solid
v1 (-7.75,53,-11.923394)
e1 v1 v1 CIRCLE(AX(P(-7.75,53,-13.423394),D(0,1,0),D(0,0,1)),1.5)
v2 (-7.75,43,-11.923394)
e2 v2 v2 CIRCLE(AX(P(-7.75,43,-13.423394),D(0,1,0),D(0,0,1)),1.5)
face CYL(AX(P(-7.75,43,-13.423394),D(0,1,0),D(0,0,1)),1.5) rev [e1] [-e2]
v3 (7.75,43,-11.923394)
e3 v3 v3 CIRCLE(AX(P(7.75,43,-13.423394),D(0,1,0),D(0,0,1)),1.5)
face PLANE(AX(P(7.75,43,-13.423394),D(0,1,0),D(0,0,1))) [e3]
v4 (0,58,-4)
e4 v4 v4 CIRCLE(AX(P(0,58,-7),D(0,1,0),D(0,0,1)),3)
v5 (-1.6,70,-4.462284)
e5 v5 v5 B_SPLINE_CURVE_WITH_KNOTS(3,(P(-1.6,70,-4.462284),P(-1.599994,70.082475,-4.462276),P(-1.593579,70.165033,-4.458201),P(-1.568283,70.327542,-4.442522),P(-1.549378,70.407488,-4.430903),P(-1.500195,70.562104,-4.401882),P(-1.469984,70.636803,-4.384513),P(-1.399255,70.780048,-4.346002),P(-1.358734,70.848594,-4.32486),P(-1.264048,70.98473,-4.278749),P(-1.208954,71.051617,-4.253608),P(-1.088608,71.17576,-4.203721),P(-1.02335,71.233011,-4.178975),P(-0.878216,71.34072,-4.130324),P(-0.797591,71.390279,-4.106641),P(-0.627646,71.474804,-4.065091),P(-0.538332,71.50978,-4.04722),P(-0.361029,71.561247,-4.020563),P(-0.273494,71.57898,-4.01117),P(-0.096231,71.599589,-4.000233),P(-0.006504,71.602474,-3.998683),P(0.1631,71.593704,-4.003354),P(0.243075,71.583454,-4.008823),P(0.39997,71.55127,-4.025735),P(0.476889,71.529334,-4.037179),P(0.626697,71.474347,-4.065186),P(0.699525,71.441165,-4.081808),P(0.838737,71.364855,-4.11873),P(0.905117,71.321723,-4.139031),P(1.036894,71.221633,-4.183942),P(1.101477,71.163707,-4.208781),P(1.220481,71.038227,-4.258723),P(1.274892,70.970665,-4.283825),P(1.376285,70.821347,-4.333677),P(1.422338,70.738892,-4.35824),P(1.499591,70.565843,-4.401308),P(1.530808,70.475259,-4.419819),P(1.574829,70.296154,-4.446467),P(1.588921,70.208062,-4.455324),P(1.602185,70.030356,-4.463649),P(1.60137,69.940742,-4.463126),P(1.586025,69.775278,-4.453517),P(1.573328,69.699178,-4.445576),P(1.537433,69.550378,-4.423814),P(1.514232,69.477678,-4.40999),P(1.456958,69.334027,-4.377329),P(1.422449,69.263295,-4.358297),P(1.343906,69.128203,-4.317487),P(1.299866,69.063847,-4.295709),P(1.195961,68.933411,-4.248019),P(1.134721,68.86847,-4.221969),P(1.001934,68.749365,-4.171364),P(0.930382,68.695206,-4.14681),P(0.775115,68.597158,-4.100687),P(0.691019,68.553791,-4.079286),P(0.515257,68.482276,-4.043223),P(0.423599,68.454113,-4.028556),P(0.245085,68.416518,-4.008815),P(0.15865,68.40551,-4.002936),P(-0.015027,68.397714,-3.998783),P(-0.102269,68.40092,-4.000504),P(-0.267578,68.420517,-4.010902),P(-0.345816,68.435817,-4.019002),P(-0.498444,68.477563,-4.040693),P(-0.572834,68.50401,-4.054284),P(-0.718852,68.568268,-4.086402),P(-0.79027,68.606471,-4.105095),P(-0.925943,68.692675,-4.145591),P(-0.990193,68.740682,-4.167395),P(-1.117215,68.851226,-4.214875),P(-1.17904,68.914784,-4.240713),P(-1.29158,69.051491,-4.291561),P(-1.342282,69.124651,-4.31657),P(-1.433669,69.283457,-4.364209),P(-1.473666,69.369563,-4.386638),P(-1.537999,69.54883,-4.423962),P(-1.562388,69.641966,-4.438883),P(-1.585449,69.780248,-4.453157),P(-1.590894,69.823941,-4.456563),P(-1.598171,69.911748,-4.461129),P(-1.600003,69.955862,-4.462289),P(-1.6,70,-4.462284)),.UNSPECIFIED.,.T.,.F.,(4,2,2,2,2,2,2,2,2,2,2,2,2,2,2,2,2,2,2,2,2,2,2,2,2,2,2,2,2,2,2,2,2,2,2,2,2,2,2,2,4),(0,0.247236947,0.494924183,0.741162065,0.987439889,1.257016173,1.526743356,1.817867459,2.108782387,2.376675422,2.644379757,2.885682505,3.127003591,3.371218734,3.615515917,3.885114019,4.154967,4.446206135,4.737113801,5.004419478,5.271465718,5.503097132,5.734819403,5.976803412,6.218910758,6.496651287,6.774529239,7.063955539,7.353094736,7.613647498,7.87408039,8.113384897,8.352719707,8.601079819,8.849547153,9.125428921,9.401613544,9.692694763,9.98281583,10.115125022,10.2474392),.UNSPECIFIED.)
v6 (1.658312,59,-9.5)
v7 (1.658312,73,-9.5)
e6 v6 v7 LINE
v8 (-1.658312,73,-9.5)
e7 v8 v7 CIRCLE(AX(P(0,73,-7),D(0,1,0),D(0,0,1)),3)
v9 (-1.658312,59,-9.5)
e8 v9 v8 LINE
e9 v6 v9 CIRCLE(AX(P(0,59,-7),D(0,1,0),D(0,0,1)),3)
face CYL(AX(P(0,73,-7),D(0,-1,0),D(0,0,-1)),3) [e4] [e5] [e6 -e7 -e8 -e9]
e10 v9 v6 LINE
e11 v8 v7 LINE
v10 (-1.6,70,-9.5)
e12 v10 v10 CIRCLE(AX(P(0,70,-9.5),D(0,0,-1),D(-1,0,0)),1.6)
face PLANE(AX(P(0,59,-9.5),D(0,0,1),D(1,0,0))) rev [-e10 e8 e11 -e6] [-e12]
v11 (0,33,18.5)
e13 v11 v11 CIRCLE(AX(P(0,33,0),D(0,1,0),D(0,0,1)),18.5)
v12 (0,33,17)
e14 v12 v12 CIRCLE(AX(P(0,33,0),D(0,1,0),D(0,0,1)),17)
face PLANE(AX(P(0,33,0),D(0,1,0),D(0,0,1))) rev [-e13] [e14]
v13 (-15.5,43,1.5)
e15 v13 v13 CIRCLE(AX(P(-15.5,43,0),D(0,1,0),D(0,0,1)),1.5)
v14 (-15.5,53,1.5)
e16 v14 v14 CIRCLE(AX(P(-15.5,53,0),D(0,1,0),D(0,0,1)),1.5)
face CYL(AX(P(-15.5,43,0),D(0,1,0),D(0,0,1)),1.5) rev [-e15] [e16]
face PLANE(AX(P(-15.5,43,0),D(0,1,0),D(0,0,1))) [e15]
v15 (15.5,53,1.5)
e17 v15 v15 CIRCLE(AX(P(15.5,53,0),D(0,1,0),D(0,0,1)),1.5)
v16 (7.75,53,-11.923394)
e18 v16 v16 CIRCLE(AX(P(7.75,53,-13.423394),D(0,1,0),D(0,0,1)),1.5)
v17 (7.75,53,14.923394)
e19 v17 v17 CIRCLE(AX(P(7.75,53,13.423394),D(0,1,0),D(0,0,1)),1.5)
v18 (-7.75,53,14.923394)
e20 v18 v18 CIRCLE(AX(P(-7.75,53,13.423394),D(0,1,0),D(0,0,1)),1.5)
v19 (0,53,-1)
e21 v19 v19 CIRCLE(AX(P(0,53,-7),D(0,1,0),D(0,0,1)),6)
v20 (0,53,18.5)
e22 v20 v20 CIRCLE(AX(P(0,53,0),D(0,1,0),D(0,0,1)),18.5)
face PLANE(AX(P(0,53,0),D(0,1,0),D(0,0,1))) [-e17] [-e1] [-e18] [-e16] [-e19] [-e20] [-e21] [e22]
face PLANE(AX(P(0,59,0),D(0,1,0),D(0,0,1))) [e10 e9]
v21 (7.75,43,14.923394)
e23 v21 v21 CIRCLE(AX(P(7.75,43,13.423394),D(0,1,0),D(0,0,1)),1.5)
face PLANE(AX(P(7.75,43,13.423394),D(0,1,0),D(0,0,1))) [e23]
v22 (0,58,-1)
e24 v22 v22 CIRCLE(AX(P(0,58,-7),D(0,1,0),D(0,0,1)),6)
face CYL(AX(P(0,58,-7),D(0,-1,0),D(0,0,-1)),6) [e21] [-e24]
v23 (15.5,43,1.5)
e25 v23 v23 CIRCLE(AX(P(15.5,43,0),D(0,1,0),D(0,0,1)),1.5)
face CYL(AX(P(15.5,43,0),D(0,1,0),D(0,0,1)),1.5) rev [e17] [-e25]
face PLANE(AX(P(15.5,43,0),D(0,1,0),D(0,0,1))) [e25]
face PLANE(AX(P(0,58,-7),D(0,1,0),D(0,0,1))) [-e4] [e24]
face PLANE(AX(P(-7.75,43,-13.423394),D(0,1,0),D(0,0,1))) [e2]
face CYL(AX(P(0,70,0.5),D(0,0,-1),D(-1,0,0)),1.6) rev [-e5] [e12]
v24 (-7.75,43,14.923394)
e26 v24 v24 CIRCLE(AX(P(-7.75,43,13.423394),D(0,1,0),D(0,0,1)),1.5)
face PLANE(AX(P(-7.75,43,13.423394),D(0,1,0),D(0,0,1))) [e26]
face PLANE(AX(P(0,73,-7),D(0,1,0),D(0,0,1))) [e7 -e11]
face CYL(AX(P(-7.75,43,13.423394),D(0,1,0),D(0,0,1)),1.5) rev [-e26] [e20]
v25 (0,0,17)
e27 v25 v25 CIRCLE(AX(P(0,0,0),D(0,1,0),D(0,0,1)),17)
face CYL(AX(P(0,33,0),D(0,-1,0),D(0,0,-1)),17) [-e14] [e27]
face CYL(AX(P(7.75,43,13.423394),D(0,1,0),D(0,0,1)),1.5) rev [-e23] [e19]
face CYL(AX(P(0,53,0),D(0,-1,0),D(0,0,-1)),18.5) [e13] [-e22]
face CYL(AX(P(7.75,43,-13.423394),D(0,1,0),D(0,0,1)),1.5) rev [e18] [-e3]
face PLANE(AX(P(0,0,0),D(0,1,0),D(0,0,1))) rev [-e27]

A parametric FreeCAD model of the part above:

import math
import FreeCAD as App
import Part
import Sketcher

doc = App.newDocument("Part")
params = doc.addObject("Spreadsheet::Sheet", "Params")
for row, (alias, value) in enumerate([
    ("sketch1_diameter", "34 mm"),
    ("pad1_length", "33 mm"),
    ("sketch2_diameter", "37 mm"),
    ("pad2_length", "20 mm"),
    ("sketch3_diameter", "12 mm"),
    ("pad3_length", "5 mm"),
    ("sketch4_diameter", "6 mm"),
    ("pad4_length", "15 mm"),
    ("sketch5_radius", "3 mm"),
    ("pocket1_length", "14 mm"),
    ("sketch6_diameter", "3 mm"),
    ("pocket2_length", "10 mm"),
    ("sketch7_diameter", "3.2 mm"),
    ("pocket3_length", "10 mm"),
], start=1):
    params.set(f"A{row}", alias)
    params.set(f"B{row}", "=" + value)
    params.setAlias(f"B{row}", alias)

body = doc.addObject("PartDesign::Body", "Body")

# Sketch on XZ plane
sketch1 = doc.addObject("Sketcher::SketchObject", "Sketch")
body.addObject(sketch1)
sketch1.AttachmentSupport = (doc.XZ_Plane, [""])
sketch1.MapMode = "FlatFace"
sketch1.addGeometry(Part.Circle(App.Vector(0, 0, 0), App.Vector(0, 0, 1), 17), False)
sketch1.addConstraint([
    Sketcher.Constraint("Coincident", 0, 3, -1, 1),
    Sketcher.Constraint("Diameter", 0, 34.0),
])
sketch1.setExpression("Constraints[1]", "Params.sketch1_diameter")
pad1 = doc.addObject("PartDesign::Pad", "Pad")
body.addObject(pad1)
pad1.Profile = sketch1
pad1.setExpression("Length", "Params.pad1_length")
pad1.Reversed = True

# Sketch on XZ plane
sketch2 = doc.addObject("Sketcher::SketchObject", "Sketch001")
body.addObject(sketch2)
sketch2.AttachmentSupport = (doc.XZ_Plane, [""])
sketch2.MapMode = "FlatFace"
sketch2.AttachmentOffset = App.Placement(App.Vector(0, 0, -33), App.Rotation())
sketch2.addGeometry(Part.Circle(App.Vector(0, 0, 0), App.Vector(0, 0, 1), 18), False)
sketch2.addConstraint([
    Sketcher.Constraint("Coincident", 0, 3, -1, 1),
    Sketcher.Constraint("Diameter", 0, 37.0),
])
sketch2.setExpression("Constraints[1]", "Params.sketch2_diameter")
pad2 = doc.addObject("PartDesign::Pad", "Pad001")
body.addObject(pad2)
pad2.Profile = sketch2
pad2.setExpression("Length", "Params.pad2_length")
pad2.Reversed = True

# Sketch on XZ plane
sketch3 = doc.addObject("Sketcher::SketchObject", "Sketch002")
body.addObject(sketch3)
sketch3.AttachmentSupport = (doc.XZ_Plane, [""])
sketch3.MapMode = "FlatFace"
sketch3.AttachmentOffset = App.Placement(App.Vector(0, 0, -53), App.Rotation())
sketch3.addGeometry(Part.Circle(App.Vector(0, -7, 0), App.Vector(0, 0, 1), 6), False)
sketch3.addConstraint([
    Sketcher.Constraint("PointOnObject", 0, 3, -2),
    Sketcher.Constraint("Diameter", 0, 12.0),
    Sketcher.Constraint("DistanceY", 0, 3, -1, 1, 7.0),
])
sketch3.setExpression("Constraints[1]", "Params.sketch3_diameter")
pad3 = doc.addObject("PartDesign::Pad", "Pad002")
body.addObject(pad3)
pad3.Profile = sketch3
pad3.setExpression("Length", "Params.pad3_length")
pad3.Reversed = True

# Sketch on XZ plane
sketch4 = doc.addObject("Sketcher::SketchObject", "Sketch003")
body.addObject(sketch4)
sketch4.AttachmentSupport = (doc.XZ_Plane, [""])
sketch4.MapMode = "FlatFace"
sketch4.AttachmentOffset = App.Placement(App.Vector(0, 0, -58), App.Rotation())
sketch4.addGeometry(Part.Circle(App.Vector(0, -7, 0), App.Vector(0, 0, 1), 3), False)
sketch4.addConstraint([
    Sketcher.Constraint("PointOnObject", 0, 3, -2),
    Sketcher.Constraint("Diameter", 0, 6.0),
    Sketcher.Constraint("DistanceY", 0, 3, -1, 1, 7.0),
])
sketch4.setExpression("Constraints[1]", "Params.sketch4_diameter")
pad4 = doc.addObject("PartDesign::Pad", "Pad003")
body.addObject(pad4)
pad4.Profile = sketch4
pad4.setExpression("Length", "Params.pad4_length")
pad4.Reversed = True

# Sketch on XZ plane
sketch5 = doc.addObject("Sketcher::SketchObject", "Sketch004")
body.addObject(sketch5)
sketch5.AttachmentSupport = (doc.XZ_Plane, [""])
sketch5.MapMode = "FlatFace"
sketch5.AttachmentOffset = App.Placement(App.Vector(0, 0, -59), App.Rotation())
sketch5.addGeometry([
    Part.LineSegment(App.Vector(-1.7, -9.5, 0), App.Vector(1.7, -9.5, 0)),
    Part.ArcOfCircle(Part.Circle(App.Vector(0, -7, 0), App.Vector(0, 0, 1), 3), math.radians(-124), math.radians(-56)),
], False)
sketch5.addConstraint([
    Sketcher.Constraint("Coincident", 0, 1, 1, 1),
    Sketcher.Constraint("Coincident", 1, 2, 0, 2),
    Sketcher.Constraint("Horizontal", 0),
    Sketcher.Constraint("PointOnObject", 1, 3, -2),
    Sketcher.Constraint("Radius", 1, 3.0),
    Sketcher.Constraint("DistanceY", 1, 3, -1, 1, 7.0),
    Sketcher.Constraint("DistanceY", 0, 1, -1, 1, 9.5),
])
sketch5.setExpression("Constraints[4]", "Params.sketch5_radius")
pocket1 = doc.addObject("PartDesign::Pocket", "Pocket")
body.addObject(pocket1)
pocket1.Profile = sketch5
pocket1.setExpression("Length", "Params.pocket1_length")

# Sketch on XZ plane
sketch6 = doc.addObject("Sketcher::SketchObject", "Sketch005")
body.addObject(sketch6)
sketch6.AttachmentSupport = (doc.XZ_Plane, [""])
sketch6.MapMode = "FlatFace"
sketch6.AttachmentOffset = App.Placement(App.Vector(0, 0, -53), App.Rotation())
sketch6.addGeometry([
    Part.Circle(App.Vector(15.5, 0, 0), App.Vector(0, 0, 1), 1.5),  # 0
    Part.Circle(App.Vector(-15.5, 0, 0), App.Vector(0, 0, 1), 1.5),  # 1
    Part.Circle(App.Vector(-7.8, 13.4, 0), App.Vector(0, 0, 1), 1.5),  # 2
    Part.Circle(App.Vector(7.8, 13.4, 0), App.Vector(0, 0, 1), 1.5),  # 3
    Part.Circle(App.Vector(-7.8, -13.4, 0), App.Vector(0, 0, 1), 1.5),  # 4
    Part.Circle(App.Vector(7.8, -13.4, 0), App.Vector(0, 0, 1), 1.5),  # 5
], False)
sketch6.addConstraint([
    Sketcher.Constraint("Equal", 0, 1),
    Sketcher.Constraint("Equal", 1, 2),
    Sketcher.Constraint("Equal", 2, 3),
    Sketcher.Constraint("Equal", 3, 4),
    Sketcher.Constraint("Equal", 4, 5),
    Sketcher.Constraint("Symmetric", 0, 3, 1, 3, -1, 1),
    Sketcher.Constraint("Symmetric", 3, 3, 4, 3, -1, 1),
    Sketcher.Constraint("Symmetric", 2, 3, 5, 3, -1, 1),
    Sketcher.Constraint("Symmetric", 2, 3, 3, 3, -2),
    Sketcher.Constraint("PointOnObject", 0, 3, -1),
    Sketcher.Constraint("Diameter", 0, 3.0),
    Sketcher.Constraint("DistanceX", 1, 3, 0, 3, 31.0),
    Sketcher.Constraint("DistanceX", 2, 3, 3, 3, 15.5),
    Sketcher.Constraint("DistanceY", -1, 1, 2, 3, 13.423394),
])
sketch6.setExpression("Constraints[10]", "Params.sketch6_diameter")
pocket2 = doc.addObject("PartDesign::Pocket", "Pocket001")
body.addObject(pocket2)
pocket2.Profile = sketch6
pocket2.setExpression("Length", "Params.pocket2_length")
pocket2.Reversed = True

# Sketch on XY plane
sketch7 = doc.addObject("Sketcher::SketchObject", "Sketch006")
body.addObject(sketch7)
sketch7.AttachmentSupport = (doc.XY_Plane, [""])
sketch7.MapMode = "FlatFace"
sketch7.AttachmentOffset = App.Placement(App.Vector(0, 0, -9.5), App.Rotation())
sketch7.addGeometry(Part.Circle(App.Vector(0, 70, 0), App.Vector(0, 0, 1), 1.6), False)
sketch7.addConstraint([
    Sketcher.Constraint("PointOnObject", 0, 3, -2),
    Sketcher.Constraint("Diameter", 0, 3.2),
    Sketcher.Constraint("DistanceY", -1, 1, 0, 3, 70.0),
])
sketch7.setExpression("Constraints[1]", "Params.sketch7_diameter")
pocket3 = doc.addObject("PartDesign::Pocket", "Pocket002")
body.addObject(pocket3)
pocket3.Profile = sketch7
pocket3.setExpression("Length", "Params.pocket3_length")
pocket3.Reversed = True

doc.recompute()
